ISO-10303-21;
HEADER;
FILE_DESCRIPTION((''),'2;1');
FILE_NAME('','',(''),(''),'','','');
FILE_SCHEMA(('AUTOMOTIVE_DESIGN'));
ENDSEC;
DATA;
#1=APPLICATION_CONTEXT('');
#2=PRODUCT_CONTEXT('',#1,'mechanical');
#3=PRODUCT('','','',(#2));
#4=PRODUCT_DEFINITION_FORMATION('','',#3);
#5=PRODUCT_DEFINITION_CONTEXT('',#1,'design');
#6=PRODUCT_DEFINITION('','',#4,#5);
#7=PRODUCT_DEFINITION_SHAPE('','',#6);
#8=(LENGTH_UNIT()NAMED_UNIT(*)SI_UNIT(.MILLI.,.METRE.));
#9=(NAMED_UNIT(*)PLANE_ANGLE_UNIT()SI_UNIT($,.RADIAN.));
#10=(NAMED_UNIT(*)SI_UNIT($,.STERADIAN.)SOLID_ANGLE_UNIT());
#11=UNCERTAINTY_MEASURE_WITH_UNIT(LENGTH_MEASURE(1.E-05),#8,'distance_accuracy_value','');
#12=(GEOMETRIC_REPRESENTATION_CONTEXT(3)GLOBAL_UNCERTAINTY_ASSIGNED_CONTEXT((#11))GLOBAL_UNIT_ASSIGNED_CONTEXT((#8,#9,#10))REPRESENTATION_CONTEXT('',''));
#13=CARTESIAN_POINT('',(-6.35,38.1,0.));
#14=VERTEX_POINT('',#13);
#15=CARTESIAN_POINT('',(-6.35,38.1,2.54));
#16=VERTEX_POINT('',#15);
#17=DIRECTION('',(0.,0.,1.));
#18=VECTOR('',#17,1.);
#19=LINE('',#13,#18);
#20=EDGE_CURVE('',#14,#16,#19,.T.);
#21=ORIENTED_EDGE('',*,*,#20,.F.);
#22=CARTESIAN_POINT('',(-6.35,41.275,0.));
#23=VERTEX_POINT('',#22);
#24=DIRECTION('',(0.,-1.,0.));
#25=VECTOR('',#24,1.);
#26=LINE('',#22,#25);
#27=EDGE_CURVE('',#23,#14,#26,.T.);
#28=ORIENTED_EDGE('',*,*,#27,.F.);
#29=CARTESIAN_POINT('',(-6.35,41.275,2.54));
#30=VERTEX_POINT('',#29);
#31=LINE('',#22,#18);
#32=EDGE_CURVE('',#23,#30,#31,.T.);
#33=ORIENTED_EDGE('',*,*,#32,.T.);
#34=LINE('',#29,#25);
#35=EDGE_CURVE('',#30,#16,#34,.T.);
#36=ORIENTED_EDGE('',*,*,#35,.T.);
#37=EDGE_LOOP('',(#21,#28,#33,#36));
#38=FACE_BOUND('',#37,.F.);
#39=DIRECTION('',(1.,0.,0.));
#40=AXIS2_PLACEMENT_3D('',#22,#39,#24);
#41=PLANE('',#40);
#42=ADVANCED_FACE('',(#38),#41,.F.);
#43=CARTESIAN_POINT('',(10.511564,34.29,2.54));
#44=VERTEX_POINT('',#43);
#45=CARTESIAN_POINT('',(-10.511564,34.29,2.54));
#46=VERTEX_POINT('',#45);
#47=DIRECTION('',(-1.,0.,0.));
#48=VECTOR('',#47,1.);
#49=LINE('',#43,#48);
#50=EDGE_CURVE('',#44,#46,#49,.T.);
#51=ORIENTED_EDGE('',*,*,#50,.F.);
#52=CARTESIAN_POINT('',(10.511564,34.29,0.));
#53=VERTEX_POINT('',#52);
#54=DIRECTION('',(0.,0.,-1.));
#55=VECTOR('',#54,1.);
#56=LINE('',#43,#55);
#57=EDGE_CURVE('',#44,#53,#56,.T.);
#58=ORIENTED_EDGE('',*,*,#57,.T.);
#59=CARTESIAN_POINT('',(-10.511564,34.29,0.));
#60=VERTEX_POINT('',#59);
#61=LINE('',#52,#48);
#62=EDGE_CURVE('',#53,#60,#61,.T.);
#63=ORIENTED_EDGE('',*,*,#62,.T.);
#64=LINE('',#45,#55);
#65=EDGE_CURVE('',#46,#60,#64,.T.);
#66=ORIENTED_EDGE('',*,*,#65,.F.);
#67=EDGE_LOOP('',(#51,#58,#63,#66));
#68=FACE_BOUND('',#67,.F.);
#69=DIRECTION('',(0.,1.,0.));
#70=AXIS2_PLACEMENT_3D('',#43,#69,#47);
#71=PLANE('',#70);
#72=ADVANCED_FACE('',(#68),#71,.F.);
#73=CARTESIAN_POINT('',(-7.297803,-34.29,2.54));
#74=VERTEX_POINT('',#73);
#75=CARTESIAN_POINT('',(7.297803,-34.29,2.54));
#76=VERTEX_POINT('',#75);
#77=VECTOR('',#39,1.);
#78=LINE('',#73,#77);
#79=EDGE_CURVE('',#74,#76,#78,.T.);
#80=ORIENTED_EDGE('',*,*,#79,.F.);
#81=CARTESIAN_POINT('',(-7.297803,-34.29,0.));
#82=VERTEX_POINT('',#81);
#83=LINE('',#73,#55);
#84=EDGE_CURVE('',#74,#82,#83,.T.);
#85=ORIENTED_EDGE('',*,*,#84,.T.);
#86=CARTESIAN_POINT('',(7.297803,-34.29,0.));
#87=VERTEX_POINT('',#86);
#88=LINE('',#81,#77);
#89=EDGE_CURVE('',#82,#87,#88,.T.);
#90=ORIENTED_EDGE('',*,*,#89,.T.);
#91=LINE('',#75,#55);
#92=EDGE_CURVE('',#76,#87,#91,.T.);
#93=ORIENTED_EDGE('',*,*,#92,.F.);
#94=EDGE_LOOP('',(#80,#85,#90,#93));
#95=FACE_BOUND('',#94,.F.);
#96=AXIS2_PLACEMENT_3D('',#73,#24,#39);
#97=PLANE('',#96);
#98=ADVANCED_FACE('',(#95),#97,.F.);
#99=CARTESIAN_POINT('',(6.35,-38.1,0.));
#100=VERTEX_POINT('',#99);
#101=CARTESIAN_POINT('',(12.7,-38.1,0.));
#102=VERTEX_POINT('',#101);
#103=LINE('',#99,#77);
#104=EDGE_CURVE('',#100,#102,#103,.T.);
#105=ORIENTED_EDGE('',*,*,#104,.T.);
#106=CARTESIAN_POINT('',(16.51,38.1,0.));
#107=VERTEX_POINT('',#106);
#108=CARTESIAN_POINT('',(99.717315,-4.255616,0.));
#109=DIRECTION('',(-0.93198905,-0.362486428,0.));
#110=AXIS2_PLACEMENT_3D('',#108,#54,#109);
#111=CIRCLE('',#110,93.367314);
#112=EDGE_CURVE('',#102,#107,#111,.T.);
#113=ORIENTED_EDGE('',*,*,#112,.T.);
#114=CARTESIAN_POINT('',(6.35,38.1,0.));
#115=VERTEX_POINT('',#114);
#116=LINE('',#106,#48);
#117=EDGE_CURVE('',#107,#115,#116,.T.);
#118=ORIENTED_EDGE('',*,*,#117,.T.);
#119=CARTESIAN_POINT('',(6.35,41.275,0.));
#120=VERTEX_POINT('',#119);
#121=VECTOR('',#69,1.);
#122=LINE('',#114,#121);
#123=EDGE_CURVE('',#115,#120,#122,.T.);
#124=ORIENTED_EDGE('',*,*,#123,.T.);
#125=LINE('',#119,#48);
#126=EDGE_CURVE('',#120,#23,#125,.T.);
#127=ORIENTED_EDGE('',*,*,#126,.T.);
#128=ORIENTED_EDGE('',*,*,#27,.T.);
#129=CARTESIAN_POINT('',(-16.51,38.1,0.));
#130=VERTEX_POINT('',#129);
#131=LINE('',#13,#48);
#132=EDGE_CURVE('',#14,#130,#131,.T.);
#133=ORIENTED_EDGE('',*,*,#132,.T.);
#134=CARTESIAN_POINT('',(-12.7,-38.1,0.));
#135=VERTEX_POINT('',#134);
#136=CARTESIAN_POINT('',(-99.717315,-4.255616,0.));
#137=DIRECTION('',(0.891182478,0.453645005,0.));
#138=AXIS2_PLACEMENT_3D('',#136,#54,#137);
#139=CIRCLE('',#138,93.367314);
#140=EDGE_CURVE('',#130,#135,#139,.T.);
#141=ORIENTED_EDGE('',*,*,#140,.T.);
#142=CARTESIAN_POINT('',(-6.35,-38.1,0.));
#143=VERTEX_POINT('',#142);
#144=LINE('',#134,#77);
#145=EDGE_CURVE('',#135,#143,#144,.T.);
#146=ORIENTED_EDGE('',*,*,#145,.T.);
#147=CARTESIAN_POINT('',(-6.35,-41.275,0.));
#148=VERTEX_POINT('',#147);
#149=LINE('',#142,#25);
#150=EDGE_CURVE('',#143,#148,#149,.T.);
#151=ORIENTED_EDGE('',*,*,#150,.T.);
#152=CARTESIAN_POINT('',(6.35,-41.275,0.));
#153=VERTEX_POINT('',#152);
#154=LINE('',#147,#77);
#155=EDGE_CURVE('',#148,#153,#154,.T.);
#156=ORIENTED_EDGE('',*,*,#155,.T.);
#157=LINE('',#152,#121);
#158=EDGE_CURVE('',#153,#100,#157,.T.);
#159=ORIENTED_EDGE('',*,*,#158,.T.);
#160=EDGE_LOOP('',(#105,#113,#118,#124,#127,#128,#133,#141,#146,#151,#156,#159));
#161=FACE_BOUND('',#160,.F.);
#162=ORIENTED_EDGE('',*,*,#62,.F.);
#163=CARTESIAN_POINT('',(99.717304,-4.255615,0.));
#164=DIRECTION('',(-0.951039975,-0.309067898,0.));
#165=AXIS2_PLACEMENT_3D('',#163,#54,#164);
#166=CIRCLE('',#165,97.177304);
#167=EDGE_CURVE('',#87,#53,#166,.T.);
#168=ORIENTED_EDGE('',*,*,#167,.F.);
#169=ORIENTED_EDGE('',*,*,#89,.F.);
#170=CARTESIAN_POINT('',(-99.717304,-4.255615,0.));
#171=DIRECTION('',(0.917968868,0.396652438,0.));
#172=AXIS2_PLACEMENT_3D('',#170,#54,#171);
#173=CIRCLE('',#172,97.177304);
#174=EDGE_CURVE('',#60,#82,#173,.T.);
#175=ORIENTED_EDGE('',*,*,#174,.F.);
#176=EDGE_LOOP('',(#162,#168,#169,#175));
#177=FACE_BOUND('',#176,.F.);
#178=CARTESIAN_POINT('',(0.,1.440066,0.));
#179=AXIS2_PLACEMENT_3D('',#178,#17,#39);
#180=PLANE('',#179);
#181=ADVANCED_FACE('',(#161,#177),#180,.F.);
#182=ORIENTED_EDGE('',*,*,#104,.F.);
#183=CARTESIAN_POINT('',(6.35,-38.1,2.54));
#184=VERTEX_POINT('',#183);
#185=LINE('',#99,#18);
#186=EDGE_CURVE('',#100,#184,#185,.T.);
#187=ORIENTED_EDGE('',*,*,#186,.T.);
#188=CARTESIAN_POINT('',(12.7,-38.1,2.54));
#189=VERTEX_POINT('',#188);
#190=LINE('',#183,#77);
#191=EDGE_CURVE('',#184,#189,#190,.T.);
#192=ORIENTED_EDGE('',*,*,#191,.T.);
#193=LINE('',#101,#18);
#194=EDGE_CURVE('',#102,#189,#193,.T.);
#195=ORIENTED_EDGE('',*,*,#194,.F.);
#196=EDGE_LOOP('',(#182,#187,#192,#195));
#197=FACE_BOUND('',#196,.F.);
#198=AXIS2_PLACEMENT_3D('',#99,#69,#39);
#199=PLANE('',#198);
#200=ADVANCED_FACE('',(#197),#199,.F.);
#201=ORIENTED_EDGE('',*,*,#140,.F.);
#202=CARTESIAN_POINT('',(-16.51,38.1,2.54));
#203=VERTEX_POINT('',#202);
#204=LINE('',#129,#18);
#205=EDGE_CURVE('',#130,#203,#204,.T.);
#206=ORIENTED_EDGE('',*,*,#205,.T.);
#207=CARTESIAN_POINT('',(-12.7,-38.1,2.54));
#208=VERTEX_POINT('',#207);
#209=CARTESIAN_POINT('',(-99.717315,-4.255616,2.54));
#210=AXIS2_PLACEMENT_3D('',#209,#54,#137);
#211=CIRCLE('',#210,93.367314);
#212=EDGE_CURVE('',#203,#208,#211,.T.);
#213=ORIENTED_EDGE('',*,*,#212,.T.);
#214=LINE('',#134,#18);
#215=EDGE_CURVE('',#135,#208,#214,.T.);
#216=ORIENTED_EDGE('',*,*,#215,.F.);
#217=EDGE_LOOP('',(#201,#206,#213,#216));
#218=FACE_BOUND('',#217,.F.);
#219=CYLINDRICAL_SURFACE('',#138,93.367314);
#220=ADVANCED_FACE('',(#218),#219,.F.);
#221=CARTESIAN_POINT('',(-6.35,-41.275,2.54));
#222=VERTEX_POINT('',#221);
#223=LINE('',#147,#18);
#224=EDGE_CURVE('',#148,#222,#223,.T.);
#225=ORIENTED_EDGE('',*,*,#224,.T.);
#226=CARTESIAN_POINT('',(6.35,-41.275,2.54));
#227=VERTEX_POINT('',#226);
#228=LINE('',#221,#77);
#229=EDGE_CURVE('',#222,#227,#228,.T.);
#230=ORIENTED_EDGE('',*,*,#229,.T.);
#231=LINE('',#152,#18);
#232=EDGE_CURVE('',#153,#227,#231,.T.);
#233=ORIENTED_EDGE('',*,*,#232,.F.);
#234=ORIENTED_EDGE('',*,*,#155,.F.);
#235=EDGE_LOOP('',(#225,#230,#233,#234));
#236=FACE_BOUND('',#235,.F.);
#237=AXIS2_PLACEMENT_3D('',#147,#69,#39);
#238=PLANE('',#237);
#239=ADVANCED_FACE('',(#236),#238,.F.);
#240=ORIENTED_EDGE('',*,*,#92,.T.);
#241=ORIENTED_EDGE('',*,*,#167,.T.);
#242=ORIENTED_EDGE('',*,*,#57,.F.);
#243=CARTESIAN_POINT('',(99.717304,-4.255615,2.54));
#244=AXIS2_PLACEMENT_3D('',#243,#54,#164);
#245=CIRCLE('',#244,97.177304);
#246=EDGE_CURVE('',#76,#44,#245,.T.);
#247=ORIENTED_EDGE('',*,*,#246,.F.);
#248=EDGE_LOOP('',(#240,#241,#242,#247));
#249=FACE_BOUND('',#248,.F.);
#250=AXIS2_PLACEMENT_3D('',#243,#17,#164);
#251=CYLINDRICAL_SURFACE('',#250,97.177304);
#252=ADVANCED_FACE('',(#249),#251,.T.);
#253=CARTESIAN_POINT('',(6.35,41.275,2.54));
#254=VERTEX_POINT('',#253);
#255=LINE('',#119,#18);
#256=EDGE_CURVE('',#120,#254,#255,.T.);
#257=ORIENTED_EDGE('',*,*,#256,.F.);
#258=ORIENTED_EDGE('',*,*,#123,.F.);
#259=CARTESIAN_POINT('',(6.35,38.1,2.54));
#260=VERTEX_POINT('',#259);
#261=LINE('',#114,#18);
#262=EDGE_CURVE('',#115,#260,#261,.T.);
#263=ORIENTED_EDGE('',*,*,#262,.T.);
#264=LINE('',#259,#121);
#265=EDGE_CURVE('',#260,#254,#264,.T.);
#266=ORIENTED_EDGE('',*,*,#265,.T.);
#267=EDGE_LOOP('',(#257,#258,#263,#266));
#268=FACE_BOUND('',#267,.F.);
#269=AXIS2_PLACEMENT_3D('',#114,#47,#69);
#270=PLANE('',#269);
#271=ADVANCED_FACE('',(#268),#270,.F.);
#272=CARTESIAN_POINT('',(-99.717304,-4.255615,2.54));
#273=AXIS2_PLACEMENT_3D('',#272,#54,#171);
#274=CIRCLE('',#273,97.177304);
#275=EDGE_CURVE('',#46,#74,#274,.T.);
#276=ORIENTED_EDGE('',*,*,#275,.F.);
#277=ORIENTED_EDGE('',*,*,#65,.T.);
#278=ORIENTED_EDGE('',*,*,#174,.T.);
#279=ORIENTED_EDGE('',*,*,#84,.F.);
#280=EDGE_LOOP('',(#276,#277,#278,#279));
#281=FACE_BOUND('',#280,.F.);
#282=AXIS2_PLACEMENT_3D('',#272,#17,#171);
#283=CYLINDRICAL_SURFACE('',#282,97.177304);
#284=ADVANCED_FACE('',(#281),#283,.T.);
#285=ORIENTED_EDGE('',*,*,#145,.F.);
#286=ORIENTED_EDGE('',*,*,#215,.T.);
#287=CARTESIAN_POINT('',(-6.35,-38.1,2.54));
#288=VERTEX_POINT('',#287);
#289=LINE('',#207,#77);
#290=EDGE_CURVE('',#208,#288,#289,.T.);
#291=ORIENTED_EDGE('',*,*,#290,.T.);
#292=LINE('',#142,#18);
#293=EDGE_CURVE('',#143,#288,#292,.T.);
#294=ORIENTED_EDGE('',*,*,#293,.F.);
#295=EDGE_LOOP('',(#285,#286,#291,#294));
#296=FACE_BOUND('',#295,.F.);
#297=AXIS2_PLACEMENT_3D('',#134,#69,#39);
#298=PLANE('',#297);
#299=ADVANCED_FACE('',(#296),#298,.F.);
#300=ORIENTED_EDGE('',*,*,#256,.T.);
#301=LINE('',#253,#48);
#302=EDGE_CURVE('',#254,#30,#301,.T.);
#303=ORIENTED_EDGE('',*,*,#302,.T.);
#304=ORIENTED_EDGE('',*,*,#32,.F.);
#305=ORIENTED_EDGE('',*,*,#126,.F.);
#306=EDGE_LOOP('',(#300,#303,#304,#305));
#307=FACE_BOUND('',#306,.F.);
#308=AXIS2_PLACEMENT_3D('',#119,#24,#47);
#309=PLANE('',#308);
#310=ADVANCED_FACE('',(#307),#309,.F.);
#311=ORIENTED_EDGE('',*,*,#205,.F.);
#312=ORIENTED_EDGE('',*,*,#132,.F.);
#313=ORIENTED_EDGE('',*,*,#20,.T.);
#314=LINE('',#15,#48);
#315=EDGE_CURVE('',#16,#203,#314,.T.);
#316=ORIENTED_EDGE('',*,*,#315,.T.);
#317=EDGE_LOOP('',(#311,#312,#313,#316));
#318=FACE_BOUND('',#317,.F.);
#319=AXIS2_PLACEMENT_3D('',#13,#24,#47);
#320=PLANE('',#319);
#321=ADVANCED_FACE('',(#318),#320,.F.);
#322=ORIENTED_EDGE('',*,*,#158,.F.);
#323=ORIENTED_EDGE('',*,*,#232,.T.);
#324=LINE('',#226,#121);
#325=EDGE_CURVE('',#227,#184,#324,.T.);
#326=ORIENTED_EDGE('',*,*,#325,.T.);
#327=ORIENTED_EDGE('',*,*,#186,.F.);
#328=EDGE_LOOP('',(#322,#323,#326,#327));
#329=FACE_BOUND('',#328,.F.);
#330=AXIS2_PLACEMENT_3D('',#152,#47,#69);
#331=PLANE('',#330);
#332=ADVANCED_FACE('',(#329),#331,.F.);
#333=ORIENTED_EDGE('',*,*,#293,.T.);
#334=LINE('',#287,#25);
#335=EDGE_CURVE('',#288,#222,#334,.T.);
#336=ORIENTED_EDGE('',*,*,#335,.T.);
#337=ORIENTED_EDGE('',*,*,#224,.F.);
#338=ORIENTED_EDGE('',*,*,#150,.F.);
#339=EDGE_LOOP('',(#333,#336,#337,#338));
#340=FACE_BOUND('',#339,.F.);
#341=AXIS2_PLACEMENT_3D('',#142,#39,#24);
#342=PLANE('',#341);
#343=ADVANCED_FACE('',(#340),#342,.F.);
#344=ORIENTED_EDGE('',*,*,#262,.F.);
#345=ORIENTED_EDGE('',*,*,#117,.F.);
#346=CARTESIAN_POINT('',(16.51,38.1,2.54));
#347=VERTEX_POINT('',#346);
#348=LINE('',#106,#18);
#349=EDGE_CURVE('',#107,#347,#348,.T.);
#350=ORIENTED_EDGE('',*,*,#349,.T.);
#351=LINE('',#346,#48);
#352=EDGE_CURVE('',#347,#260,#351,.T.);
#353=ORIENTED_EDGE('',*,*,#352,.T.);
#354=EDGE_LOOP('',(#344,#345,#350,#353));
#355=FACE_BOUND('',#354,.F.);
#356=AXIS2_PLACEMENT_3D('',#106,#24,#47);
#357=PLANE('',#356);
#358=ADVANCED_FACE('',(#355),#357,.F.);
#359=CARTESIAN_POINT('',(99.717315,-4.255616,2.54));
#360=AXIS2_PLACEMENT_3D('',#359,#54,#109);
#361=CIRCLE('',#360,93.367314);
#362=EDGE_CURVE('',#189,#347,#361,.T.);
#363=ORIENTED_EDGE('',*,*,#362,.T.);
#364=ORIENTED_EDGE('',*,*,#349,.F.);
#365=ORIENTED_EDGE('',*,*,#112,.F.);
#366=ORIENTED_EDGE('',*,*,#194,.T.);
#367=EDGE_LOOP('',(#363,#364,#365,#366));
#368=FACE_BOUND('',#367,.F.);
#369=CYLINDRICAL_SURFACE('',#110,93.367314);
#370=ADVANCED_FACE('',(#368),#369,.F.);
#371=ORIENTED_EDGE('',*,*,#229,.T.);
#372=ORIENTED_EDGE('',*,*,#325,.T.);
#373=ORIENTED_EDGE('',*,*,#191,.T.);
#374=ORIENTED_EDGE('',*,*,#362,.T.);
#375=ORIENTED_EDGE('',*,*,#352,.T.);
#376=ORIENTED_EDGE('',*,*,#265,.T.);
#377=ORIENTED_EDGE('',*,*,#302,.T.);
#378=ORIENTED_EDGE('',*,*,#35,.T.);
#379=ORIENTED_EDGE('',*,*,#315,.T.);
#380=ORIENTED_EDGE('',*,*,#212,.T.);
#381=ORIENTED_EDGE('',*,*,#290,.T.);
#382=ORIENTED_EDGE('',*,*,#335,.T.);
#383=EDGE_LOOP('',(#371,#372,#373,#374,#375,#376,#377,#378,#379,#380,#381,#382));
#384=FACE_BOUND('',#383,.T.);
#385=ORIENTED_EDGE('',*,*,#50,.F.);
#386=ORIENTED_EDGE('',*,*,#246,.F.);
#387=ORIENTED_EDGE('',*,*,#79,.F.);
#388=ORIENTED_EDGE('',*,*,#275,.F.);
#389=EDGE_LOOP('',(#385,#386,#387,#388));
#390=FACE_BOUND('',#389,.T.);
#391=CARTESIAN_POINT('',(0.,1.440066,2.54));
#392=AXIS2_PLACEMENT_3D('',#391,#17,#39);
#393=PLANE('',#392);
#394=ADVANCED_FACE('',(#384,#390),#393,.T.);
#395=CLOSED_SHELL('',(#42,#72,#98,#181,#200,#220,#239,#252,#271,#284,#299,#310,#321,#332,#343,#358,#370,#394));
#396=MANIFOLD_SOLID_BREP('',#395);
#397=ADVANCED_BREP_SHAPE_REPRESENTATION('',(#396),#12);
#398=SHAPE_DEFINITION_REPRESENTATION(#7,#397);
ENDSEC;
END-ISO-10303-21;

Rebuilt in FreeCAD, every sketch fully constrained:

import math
import FreeCAD as App
import Part
import Sketcher
Q = App.Units.Quantity

doc = App.newDocument("Part")
body = doc.addObject("PartDesign::Body", "Body")

# Sketch on XY plane
sketch1 = doc.addObject("Sketcher::SketchObject", "Sketch")
body.addObject(sketch1)
sketch1.AttachmentSupport = (doc.XY_Plane, [""])
sketch1.MapMode = "FlatFace"
sketch1.addGeometry(Part.ArcOfCircle(Part.Circle(App.Vector(-99.717315, -4.255616, 0), App.Vector(0, 0, 1), 93.367314), math.radians(-21.252975), math.radians(26.977785)), False)
sketch1.addGeometry(Part.LineSegment(App.Vector(-12.7, -38.1, 0), App.Vector(-6.35, -38.1, 0)), False)
sketch1.addGeometry(Part.LineSegment(App.Vector(-6.35, -38.1, 0), App.Vector(-6.35, -41.275, 0)), False)
sketch1.addGeometry(Part.LineSegment(App.Vector(-6.35, -41.275, 0), App.Vector(6.35, -41.275, 0)), False)
sketch1.addGeometry(Part.LineSegment(App.Vector(6.35, -41.275, 0), App.Vector(6.35, -38.1, 0)), False)
sketch1.addGeometry(Part.LineSegment(App.Vector(6.35, -38.1, 0), App.Vector(12.7, -38.1, 0)), False)
sketch1.addGeometry(Part.ArcOfCircle(Part.Circle(App.Vector(99.717315, -4.255616, 0), App.Vector(0, 0, 1), 93.367314), math.radians(153.022215), math.radians(201.252975)), False)
sketch1.addGeometry(Part.LineSegment(App.Vector(16.51, 38.1, 0), App.Vector(6.35, 38.1, 0)), False)
sketch1.addGeometry(Part.LineSegment(App.Vector(6.35, 38.1, 0), App.Vector(6.35, 41.275, 0)), False)
sketch1.addGeometry(Part.LineSegment(App.Vector(6.35, 41.275, 0), App.Vector(-6.35, 41.275, 0)), False)
sketch1.addGeometry(Part.LineSegment(App.Vector(-6.35, 41.275, 0), App.Vector(-6.35, 38.1, 0)), False)
sketch1.addGeometry(Part.LineSegment(App.Vector(-6.35, 38.1, 0), App.Vector(-16.51, 38.1, 0)), False)
sketch1.addConstraint(Sketcher.Constraint("Coincident", 0, 1, 1, 1))
sketch1.addConstraint(Sketcher.Constraint("Coincident", 1, 2, 2, 1))
sketch1.addConstraint(Sketcher.Constraint("Coincident", 2, 2, 3, 1))
sketch1.addConstraint(Sketcher.Constraint("Coincident", 3, 2, 4, 1))
sketch1.addConstraint(Sketcher.Constraint("Coincident", 4, 2, 5, 1))
sketch1.addConstraint(Sketcher.Constraint("Coincident", 5, 2, 6, 2))
sketch1.addConstraint(Sketcher.Constraint("Coincident", 6, 1, 7, 1))
sketch1.addConstraint(Sketcher.Constraint("Coincident", 7, 2, 8, 1))
sketch1.addConstraint(Sketcher.Constraint("Coincident", 8, 2, 9, 1))
sketch1.addConstraint(Sketcher.Constraint("Coincident", 9, 2, 10, 1))
sketch1.addConstraint(Sketcher.Constraint("Coincident", 10, 2, 11, 1))
sketch1.addConstraint(Sketcher.Constraint("Coincident", 11, 2, 0, 2))
sketch1.addConstraint(Sketcher.Constraint("Horizontal", 1))
sketch1.addConstraint(Sketcher.Constraint("Vertical", 2))
sketch1.addConstraint(Sketcher.Constraint("Horizontal", 3))
sketch1.addConstraint(Sketcher.Constraint("Vertical", 4))
sketch1.addConstraint(Sketcher.Constraint("Horizontal", 5))
sketch1.addConstraint(Sketcher.Constraint("Horizontal", 7))
sketch1.addConstraint(Sketcher.Constraint("Vertical", 8))
sketch1.addConstraint(Sketcher.Constraint("Horizontal", 9))
sketch1.addConstraint(Sketcher.Constraint("Vertical", 10))
sketch1.addConstraint(Sketcher.Constraint("Horizontal", 11))
sketch1.addConstraint(Sketcher.Constraint("Equal", 0, 6))
sketch1.addConstraint(Sketcher.Constraint("Symmetric", 1, 2, 7, 2, -1, 1))
sketch1.addConstraint(Sketcher.Constraint("Symmetric", 3, 2, 9, 2, -1, 1))
sketch1.addConstraint(Sketcher.Constraint("Symmetric", 0, 3, 6, 3, -2))
sketch1.addConstraint(Sketcher.Constraint("Symmetric", 1, 2, 4, 2, -2))
sketch1.addConstraint(Sketcher.Constraint("Horizontal", 7, 2, 10, 2))
sketch1.addConstraint(Sketcher.Constraint("DistanceX", 3, 1, 3, 2, Q("0.5 in")))
sketch1.addConstraint(Sketcher.Constraint("DistanceX", 7, 2, 7, 1, Q("0.4 in")))
sketch1.addConstraint(Sketcher.Constraint("DistanceX", 0, 1, 5, 2, Q("1 in")))
sketch1.addConstraint(Sketcher.Constraint("DistanceY", 5, 2, 6, 1, Q("3 in")))
sketch1.addConstraint(Sketcher.Constraint("DistanceY", 2, 2, 2, 1, Q("0.125 in")))
sketch1.addConstraint(Sketcher.Constraint("Radius", 0, 93.367314))
pad1 = doc.addObject("PartDesign::Pad", "Pad")
body.addObject(pad1)
pad1.Profile = sketch1
pad1.Length = Q("0.1 in")

# Sketch on XY plane
sketch2 = doc.addObject("Sketcher::SketchObject", "Sketch001")
body.addObject(sketch2)
sketch2.AttachmentSupport = (doc.XY_Plane, [""])
sketch2.MapMode = "FlatFace"
sketch2.AttachmentOffset = App.Placement(App.Vector(0, 0, 0.1 * 25.4), App.Rotation())
sketch2.addGeometry(Part.ArcOfCircle(Part.Circle(App.Vector(-99.717304, -4.255615, 0), App.Vector(0, 0, 1), 97.177304), math.radians(-18.003067), math.radians(23.369072)), False)
sketch2.addGeometry(Part.LineSegment(App.Vector(-7.297803, -34.29, 0), App.Vector(7.297803, -34.29, 0)), False)
sketch2.addGeometry(Part.ArcOfCircle(Part.Circle(App.Vector(99.717304, -4.255615, 0), App.Vector(0, 0, 1), 97.177304), math.radians(156.630928), math.radians(198.003067)), False)
sketch2.addGeometry(Part.LineSegment(App.Vector(10.511564, 34.29, 0), App.Vector(-10.511564, 34.29, 0)), False)
sketch2.addConstraint(Sketcher.Constraint("Coincident", 0, 1, 1, 1))
sketch2.addConstraint(Sketcher.Constraint("Coincident", 1, 2, 2, 2))
sketch2.addConstraint(Sketcher.Constraint("Coincident", 2, 1, 3, 1))
sketch2.addConstraint(Sketcher.Constraint("Coincident", 3, 2, 0, 2))
sketch2.addConstraint(Sketcher.Constraint("Horizontal", 1))
sketch2.addConstraint(Sketcher.Constraint("Horizontal", 3))
sketch2.addConstraint(Sketcher.Constraint("Equal", 0, 2))
sketch2.addConstraint(Sketcher.Constraint("Symmetric", 0, 3, 2, 3, -2))
sketch2.addConstraint(Sketcher.Constraint("DistanceY", 1, 2, 2, 1, Q("2.7 in")))
sketch2.addConstraint(Sketcher.Constraint("DistanceY", 0, 1, -1, 1, Q("1.35 in")))
sketch2.addConstraint(Sketcher.Constraint("Radius", 0, 97.177304))
sketch2.addConstraint(Sketcher.Constraint("DistanceX", 3, 2, 3, 1, 21.023128))
sketch2.addConstraint(Sketcher.Constraint("DistanceX", 0, 3, 0, 1, 92.419501))
pocket1 = doc.addObject("PartDesign::Pocket", "Pocket")
body.addObject(pocket1)
pocket1.Profile = sketch2
pocket1.Type = "ThroughAll"

doc.recompute()
